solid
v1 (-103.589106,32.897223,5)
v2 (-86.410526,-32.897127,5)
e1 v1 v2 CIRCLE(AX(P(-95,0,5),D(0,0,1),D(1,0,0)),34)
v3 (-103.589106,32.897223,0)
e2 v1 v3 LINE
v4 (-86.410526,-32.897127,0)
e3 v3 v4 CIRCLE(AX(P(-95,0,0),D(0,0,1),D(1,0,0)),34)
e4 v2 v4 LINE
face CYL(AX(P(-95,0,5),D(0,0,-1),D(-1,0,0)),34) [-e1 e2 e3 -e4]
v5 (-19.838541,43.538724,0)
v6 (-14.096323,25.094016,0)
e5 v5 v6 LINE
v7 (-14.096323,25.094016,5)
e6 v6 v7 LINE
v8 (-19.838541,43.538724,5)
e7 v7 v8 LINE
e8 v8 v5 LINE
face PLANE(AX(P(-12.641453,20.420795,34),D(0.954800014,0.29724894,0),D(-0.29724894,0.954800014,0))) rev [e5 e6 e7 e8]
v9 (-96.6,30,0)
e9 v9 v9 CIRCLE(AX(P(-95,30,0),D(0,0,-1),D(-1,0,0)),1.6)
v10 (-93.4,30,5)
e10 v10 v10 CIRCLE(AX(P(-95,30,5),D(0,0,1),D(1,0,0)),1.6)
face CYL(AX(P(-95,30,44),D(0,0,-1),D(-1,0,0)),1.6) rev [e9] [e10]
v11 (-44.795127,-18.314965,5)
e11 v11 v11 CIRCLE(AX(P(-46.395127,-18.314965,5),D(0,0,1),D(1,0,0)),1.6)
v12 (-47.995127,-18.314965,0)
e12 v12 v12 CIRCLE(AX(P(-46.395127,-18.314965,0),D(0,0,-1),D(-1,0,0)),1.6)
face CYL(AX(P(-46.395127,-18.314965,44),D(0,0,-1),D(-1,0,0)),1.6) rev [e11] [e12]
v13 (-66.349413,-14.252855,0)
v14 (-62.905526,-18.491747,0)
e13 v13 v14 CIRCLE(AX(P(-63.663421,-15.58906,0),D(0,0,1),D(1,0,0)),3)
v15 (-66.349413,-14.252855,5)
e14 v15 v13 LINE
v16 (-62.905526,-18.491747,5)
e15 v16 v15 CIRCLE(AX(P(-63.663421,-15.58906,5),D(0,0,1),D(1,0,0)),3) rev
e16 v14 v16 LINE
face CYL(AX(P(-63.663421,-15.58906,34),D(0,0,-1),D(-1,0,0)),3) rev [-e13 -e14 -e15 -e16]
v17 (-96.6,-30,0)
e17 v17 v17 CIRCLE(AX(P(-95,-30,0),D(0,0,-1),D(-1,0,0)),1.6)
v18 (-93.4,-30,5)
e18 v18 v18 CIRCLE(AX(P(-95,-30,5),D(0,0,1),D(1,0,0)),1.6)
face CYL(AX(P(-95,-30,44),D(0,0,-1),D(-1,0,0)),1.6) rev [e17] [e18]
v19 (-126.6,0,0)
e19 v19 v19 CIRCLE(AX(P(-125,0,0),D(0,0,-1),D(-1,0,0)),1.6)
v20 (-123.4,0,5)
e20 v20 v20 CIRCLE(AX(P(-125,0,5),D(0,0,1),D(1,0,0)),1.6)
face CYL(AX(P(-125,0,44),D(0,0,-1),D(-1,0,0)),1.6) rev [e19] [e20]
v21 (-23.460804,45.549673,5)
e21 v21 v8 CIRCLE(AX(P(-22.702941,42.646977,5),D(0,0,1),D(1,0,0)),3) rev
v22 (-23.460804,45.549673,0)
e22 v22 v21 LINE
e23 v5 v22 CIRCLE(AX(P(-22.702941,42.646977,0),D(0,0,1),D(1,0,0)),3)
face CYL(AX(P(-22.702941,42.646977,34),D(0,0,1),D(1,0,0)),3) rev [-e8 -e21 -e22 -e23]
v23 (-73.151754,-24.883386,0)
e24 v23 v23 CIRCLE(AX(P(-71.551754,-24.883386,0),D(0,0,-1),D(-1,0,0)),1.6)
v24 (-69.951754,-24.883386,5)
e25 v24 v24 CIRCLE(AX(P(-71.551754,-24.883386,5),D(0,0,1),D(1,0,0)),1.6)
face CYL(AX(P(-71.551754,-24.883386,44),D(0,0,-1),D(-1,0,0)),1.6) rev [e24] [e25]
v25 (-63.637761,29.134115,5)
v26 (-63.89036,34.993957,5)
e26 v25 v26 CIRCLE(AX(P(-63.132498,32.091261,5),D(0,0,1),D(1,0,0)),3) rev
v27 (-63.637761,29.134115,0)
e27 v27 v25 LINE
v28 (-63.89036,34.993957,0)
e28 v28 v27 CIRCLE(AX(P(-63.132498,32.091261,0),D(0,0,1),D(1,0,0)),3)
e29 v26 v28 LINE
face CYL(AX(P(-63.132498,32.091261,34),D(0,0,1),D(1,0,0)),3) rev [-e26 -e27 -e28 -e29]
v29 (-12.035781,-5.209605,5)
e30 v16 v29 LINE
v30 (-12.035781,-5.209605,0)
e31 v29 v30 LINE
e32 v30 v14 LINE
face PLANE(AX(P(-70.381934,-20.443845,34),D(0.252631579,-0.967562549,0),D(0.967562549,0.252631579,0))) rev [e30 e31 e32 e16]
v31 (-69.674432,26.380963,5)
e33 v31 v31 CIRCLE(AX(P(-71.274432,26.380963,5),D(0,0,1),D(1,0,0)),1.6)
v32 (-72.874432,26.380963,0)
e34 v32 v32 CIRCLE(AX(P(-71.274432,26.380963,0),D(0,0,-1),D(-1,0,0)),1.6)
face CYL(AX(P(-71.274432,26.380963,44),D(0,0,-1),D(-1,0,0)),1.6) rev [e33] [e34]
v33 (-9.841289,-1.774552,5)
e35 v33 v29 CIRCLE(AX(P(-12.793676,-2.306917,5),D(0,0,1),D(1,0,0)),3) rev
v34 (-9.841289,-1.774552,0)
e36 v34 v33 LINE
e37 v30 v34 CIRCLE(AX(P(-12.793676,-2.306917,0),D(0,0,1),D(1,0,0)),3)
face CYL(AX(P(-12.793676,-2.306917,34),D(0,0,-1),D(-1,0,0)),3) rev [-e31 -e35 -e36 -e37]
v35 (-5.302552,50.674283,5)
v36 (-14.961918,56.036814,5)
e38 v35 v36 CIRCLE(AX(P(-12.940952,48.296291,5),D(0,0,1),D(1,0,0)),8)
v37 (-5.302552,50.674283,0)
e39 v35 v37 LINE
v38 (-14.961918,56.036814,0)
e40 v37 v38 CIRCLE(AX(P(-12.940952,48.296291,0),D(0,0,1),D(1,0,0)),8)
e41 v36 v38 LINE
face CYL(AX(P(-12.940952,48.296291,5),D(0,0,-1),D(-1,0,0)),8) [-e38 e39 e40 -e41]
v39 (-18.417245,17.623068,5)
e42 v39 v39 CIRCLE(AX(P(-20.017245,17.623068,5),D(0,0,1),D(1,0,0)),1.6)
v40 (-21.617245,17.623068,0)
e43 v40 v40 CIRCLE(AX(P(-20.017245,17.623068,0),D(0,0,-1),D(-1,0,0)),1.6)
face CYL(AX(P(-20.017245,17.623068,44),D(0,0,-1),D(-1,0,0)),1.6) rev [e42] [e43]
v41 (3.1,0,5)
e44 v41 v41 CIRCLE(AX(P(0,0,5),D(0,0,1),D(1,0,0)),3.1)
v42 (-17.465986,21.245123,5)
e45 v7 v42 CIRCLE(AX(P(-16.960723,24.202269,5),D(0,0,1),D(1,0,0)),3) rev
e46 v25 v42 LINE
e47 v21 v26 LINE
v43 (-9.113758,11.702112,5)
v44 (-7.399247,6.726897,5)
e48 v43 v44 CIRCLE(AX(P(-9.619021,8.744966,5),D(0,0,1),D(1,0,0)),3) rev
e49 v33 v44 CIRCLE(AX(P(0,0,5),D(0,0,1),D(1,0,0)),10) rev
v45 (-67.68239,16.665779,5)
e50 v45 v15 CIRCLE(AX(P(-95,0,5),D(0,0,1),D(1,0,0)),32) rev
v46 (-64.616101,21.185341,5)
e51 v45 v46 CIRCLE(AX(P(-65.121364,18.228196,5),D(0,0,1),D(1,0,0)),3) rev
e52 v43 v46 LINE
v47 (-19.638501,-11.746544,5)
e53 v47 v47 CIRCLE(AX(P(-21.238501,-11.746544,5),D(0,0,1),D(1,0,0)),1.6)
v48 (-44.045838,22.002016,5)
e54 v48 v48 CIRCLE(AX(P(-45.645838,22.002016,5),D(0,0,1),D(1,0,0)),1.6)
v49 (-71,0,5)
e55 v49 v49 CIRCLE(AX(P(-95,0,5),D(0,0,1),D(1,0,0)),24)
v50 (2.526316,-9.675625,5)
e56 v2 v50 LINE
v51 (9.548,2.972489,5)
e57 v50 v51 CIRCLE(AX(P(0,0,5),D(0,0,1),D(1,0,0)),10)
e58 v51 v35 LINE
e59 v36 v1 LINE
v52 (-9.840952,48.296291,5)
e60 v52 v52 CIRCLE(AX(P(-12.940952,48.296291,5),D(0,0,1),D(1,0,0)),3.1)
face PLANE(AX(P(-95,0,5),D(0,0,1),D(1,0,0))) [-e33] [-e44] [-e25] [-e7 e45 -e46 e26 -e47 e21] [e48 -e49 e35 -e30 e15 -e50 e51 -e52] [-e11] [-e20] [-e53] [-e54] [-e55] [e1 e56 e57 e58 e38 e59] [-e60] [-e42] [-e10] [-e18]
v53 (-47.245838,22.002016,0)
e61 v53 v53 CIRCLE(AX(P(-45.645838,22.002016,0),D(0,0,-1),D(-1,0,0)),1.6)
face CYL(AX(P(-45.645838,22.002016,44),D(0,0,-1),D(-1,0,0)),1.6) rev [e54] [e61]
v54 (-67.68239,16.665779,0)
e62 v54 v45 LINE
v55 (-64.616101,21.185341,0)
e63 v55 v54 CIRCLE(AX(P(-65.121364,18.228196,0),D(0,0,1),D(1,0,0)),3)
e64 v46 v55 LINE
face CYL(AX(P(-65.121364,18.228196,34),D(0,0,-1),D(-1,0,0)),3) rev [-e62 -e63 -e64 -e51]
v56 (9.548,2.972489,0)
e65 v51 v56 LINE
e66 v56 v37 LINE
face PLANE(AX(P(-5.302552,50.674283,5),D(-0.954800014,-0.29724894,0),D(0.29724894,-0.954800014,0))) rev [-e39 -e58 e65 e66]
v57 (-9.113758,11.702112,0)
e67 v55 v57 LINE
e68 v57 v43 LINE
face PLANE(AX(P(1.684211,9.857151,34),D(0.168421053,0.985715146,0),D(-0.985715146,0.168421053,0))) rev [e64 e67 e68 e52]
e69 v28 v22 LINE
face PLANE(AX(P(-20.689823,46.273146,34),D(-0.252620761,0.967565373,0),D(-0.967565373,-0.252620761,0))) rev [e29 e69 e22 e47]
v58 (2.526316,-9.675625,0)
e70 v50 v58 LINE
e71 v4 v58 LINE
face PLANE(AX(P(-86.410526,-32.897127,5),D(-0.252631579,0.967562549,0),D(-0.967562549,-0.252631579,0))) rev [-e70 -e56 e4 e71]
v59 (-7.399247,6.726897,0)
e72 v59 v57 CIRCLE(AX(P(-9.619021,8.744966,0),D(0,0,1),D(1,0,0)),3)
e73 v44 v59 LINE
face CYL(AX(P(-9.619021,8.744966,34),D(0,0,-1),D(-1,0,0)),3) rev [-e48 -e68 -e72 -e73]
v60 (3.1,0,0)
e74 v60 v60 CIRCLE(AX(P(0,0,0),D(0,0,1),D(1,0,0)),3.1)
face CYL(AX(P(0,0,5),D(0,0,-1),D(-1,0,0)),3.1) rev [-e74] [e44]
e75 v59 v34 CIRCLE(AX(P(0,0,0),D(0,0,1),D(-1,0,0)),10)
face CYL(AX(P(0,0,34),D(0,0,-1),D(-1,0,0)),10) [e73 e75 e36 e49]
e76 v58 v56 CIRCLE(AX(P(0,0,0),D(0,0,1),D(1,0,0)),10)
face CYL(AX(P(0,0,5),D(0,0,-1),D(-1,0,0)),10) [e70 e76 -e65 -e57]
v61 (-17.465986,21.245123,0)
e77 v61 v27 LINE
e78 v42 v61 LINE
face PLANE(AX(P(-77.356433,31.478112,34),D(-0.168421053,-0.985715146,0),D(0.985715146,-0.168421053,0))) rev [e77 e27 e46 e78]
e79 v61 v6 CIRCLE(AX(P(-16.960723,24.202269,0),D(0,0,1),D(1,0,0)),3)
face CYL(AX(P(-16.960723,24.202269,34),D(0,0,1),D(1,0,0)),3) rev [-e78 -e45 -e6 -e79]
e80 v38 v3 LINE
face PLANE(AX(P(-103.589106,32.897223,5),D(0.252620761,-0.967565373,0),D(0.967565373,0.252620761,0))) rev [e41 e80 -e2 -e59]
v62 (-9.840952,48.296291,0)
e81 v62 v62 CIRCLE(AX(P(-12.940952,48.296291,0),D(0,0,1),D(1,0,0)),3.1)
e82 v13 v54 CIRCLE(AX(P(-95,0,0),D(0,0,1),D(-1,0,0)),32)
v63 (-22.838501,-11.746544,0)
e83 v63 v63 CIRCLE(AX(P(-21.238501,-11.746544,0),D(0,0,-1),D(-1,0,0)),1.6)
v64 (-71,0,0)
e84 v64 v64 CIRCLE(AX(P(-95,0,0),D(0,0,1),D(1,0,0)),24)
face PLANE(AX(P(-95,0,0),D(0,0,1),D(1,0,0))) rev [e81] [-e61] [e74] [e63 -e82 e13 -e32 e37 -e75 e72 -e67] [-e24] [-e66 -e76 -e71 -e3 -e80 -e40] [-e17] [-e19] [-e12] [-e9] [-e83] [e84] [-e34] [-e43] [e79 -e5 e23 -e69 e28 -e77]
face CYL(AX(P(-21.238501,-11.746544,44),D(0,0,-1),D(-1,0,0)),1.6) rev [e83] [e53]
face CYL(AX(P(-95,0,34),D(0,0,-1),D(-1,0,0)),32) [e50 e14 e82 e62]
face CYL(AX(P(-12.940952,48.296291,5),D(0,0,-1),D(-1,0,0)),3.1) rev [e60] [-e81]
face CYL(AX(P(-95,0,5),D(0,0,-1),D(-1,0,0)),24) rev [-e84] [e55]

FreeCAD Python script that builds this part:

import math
import FreeCAD as App
import Part
import Sketcher
from FreeCAD import Vector
Q = App.Units.Quantity


def edges_at(feature, points):
    """Names of the edges that pass closest to the given points."""
    edges = feature.Shape.Edges
    near = lambda p: min(range(len(edges)), key=lambda i: edges[i].distToShape(Part.Vertex(*p))[0])
    return sorted({f"Edge{near(p) + 1}" for p in points})


def add_polygon(sketch, points):
    """Adds a closed chain of lines whose ends are joined by coincident constraints."""
    first, n = sketch.GeometryCount, len(points)
    for a, b in zip(points, points[1:] + points[:1]):
        sketch.addGeometry(Part.LineSegment(App.Vector(*a, 0), App.Vector(*b, 0)), False)
    for i in range(n):
        sketch.addConstraint(Sketcher.Constraint("Coincident", first + i, 2, first + (i + 1) % n, 1))

doc = App.newDocument("Part")
params = doc.addObject("Spreadsheet::Sheet", "Params")
for row, (alias, value) in enumerate([
    ("sketch1_diameter", "48 mm"),
    ("sketch1_radius", "34 mm"),
    ("sketch1_radius2", "10 mm"),
    ("sketch1_radius3", "8 mm"),
    ("sketch1_diameter2", "6.2 mm"),
    ("pad1_length", "5 mm"),
    ("sketch2_diameter", "3.2 mm"),
    ("pocket1_length", "44 mm"),
    ("sketch3_radius", "32 mm"),
    ("sketch3_radius2", "10 mm"),
    ("pocket2_length", "34 mm"),
    ("fillet_radius", "3 mm"),
    ("pocket3_length", "34 mm"),
    ("fillet2_radius", "3 mm"),
], start=1):
    params.set(f"A{row}", alias)
    params.set(f"B{row}", "=" + value)
    params.setAlias(f"B{row}", alias)

body = doc.addObject("PartDesign::Body", "Body")

sketch1 = body.newObject("Sketcher::SketchObject", "Sketch")
sketch1.AttachmentSupport = (doc.getObject("XY_Plane"), [""])
sketch1.MapMode = "FlatFace"
sketch1.addGeometry([
    Part.LineSegment(Vector(-14.961918, 56.036814, 0), Vector(-103.589106, 32.897223, 0)),
    Part.ArcOfCircle(Part.Circle(Vector(-95, 0, 0), Vector(0, 0, 1), 34), math.radians(104.63265), math.radians(284.63329)),
    Part.LineSegment(Vector(-86.410526, -32.897127, 0), Vector(2.526316, -9.675625, 0)),
    Part.ArcOfCircle(Part.Circle(Vector(0, 0, 0), Vector(0, 0, 1), 10), math.radians(-75.36671), math.radians(17.292443)),
    Part.LineSegment(Vector(9.548, 2.972489, 0), Vector(-5.302552, 50.674283, 0)),
    Part.ArcOfCircle(Part.Circle(Vector(-12.940952, 48.296291, 0), Vector(0, 0, 1), 8), math.radians(17.292443), math.radians(104.63265)),
    Part.Circle(Vector(0, 0, 0), Vector(0, 0, 1), 3.1),
    Part.Circle(Vector(-95, 0, 0), Vector(0, 0, 1), 24),
    Part.Circle(Vector(-12.940952, 48.296291, 0), Vector(0, 0, 1), 3.1),
], False)
sketch1.addConstraint([
    Sketcher.Constraint("Tangent", 0, 2, 1, 1),
    Sketcher.Constraint("Tangent", 1, 2, 2, 1),
    Sketcher.Constraint("Tangent", 2, 2, 3, 1),
    Sketcher.Constraint("Tangent", 3, 2, 4, 1),
    Sketcher.Constraint("Tangent", 4, 2, 5, 1),
    Sketcher.Constraint("Tangent", 5, 2, 0, 1),
    Sketcher.Constraint("Coincident", 3, 3, -1, 1),
    Sketcher.Constraint("Coincident", 6, 3, -1, 1),
    Sketcher.Constraint("Coincident", 7, 3, 1, 3),
    Sketcher.Constraint("Coincident", 8, 3, 5, 3),
    Sketcher.Constraint("Equal", 6, 8),
    Sketcher.Constraint("PointOnObject", 1, 3, -1),
    Sketcher.Constraint("Diameter", 7, Q("48 mm")),
    Sketcher.Constraint("Radius", 1, Q("34 mm")),
    Sketcher.Constraint("Radius", 3, Q("10 mm")),
    Sketcher.Constraint("Radius", 5, Q("8 mm")),
    Sketcher.Constraint("Diameter", 6, Q("6.2 mm")),
    Sketcher.Constraint("DistanceX", 1, 3, -1, 1, Q("95 mm")),
    Sketcher.Constraint("DistanceX", -1, 1, 3, 2, Q("9.548 mm")),
    Sketcher.Constraint("DistanceY", 3, 2, 8, 3, Q("45.323802 mm")),
])
sketch1.setExpression("Constraints[12]", "Params.sketch1_diameter")
sketch1.setExpression("Constraints[13]", "Params.sketch1_radius")
sketch1.setExpression("Constraints[14]", "Params.sketch1_radius2")
sketch1.setExpression("Constraints[15]", "Params.sketch1_radius3")
sketch1.setExpression("Constraints[16]", "Params.sketch1_diameter2")
pad1 = body.newObject("PartDesign::Pad", "Pad")
pad1.Profile = sketch1
pad1.setExpression("Length", "Params.pad1_length")

sketch2 = body.newObject("Sketcher::SketchObject", "Sketch001")
sketch2.AttachmentSupport = (doc.getObject("XY_Plane"), [""])
sketch2.MapMode = "FlatFace"
sketch2.addGeometry([
    Part.Circle(Vector(-21.238501, -11.746544, 0), Vector(0, 0, 1), 1.6),
    Part.Circle(Vector(-46.395127, -18.314965, 0), Vector(0, 0, 1), 1.6),
    Part.Circle(Vector(-71.551754, -24.883386, 0), Vector(0, 0, 1), 1.6),
    Part.Circle(Vector(-95, -30, 0), Vector(0, 0, 1), 1.6),
    Part.Circle(Vector(-125, 0, 0), Vector(0, 0, 1), 1.6),
    Part.Circle(Vector(-95, 30, 0), Vector(0, 0, 1), 1.6),
    Part.Circle(Vector(-71.274432, 26.380963, 0), Vector(0, 0, 1), 1.6),
    Part.Circle(Vector(-45.645838, 22.002016, 0), Vector(0, 0, 1), 1.6),
    Part.Circle(Vector(-20.017245, 17.623068, 0), Vector(0, 0, 1), 1.6),
], False)
sketch2.addConstraint([
    Sketcher.Constraint("Equal", 0, 1),
    Sketcher.Constraint("Equal", 1, 2),
    Sketcher.Constraint("Equal", 2, 3),
    Sketcher.Constraint("Equal", 3, 4),
    Sketcher.Constraint("Equal", 4, 5),
    Sketcher.Constraint("Equal", 5, 6),
    Sketcher.Constraint("Equal", 6, 7),
    Sketcher.Constraint("Equal", 7, 8),
    Sketcher.Constraint("Symmetric", 3, 3, 5, 3, -1),
    Sketcher.Constraint("PointOnObject", 4, 3, -1),
    Sketcher.Constraint("Diameter", 0, Q("3.2 mm")),
    Sketcher.Constraint("DistanceX", 3, 3, -1, 1, Q("95 mm")),
    Sketcher.Constraint("DistanceY", 3, 3, -1, 1, Q("30 mm")),
    Sketcher.Constraint("DistanceX", 4, 3, -1, 1, Q("125 mm")),
    Sketcher.Constraint("DistanceX", 0, 3, -1, 1, Q("21.238501 mm")),
    Sketcher.Constraint("DistanceY", 2, 3, 7, 3, Q("46.885402 mm")),
    Sketcher.Constraint("DistanceX", 7, 3, -1, 1, Q("45.645838 mm")),
    Sketcher.Constraint("DistanceY", -1, 1, 8, 3, Q("17.623068 mm")),
    Sketcher.Constraint("DistanceY", 1, 3, 0, 3, Q("6.568421 mm")),
    Sketcher.Constraint("DistanceY", 2, 3, 1, 3, Q("6.568421 mm")),
    Sketcher.Constraint("DistanceY", 1, 3, 6, 3, Q("44.695928 mm")),
    Sketcher.Constraint("DistanceX", 2, 3, 6, 3, Q("0.277321 mm")),
    Sketcher.Constraint("DistanceX", 1, 3, 7, 3, Q("0.749289 mm")),
    Sketcher.Constraint("DistanceX", 2, 3, 8, 3, Q("51.534509 mm")),
    Sketcher.Constraint("DistanceY", 0, 3, -1, 1, Q("11.746544 mm")),
    Sketcher.Constraint("DistanceX", 2, 3, -1, 1, Q("71.551754 mm")),
])
sketch2.setExpression("Constraints[10]", "Params.sketch2_diameter")
pocket1 = body.newObject("PartDesign::Pocket", "Pocket")
pocket1.Profile = sketch2
pocket1.setExpression("Length", "Params.pocket1_length")
pocket1.Reversed = True

sketch3 = body.newObject("Sketcher::SketchObject", "Sketch002")
sketch3.AttachmentSupport = (doc.getObject("XY_Plane"), [""])
sketch3.MapMode = "FlatFace"
sketch3.addGeometry([
    Part.LineSegment(Vector(-8.974875, -4.410399, 0), Vector(-70.381934, -20.443845, 0)),
    Part.ArcOfCircle(Part.Circle(Vector(-95, 0, 0), Vector(0, 0, 1), 32), math.radians(-39.707622), math.radians(44.644884)),
    Part.LineSegment(Vector(-72.232775, 22.48674, 0), Vector(1.684211, 9.857151, 0)),
    Part.ArcOfCircle(Part.Circle(Vector(0, 0, 0), Vector(0, 0, 1), 10), math.radians(80.303972), math.radians(206.170249)),
], False)
sketch3.addConstraint([
    Sketcher.Constraint("Coincident", 0, 2, 1, 1),
    Sketcher.Constraint("Coincident", 1, 2, 2, 1),
    Sketcher.Constraint("Tangent", 2, 2, 3, 1),
    Sketcher.Constraint("Coincident", 3, 2, 0, 1),
    Sketcher.Constraint("Coincident", 3, 3, -1, 1),
    Sketcher.Constraint("PointOnObject", 1, 3, -1),
    Sketcher.Constraint("Radius", 1, Q("32 mm")),
    Sketcher.Constraint("Radius", 3, Q("10 mm")),
    Sketcher.Constraint("DistanceX", 1, 3, -1, 1, Q("95 mm")),
    Sketcher.Constraint("DistanceY", 3, 2, -1, 1, Q("4.410399 mm")),
    Sketcher.Constraint("DistanceX", 1, 2, 3, 2, Q("63.2579 mm")),
    Sketcher.Constraint("DistanceX", 1, 2, 0, 2, Q("1.850841 mm")),
])
sketch3.setExpression("Constraints[6]", "Params.sketch3_radius")
sketch3.setExpression("Constraints[7]", "Params.sketch3_radius2")
pocket2 = body.newObject("PartDesign::Pocket", "Pocket001")
pocket2.Profile = sketch3
pocket2.setExpression("Length", "Params.pocket2_length")
pocket2.Reversed = True
doc.recompute()

fillet = body.newObject("PartDesign::Fillet", "Fillet")
fillet.Base = (pocket2, edges_at(pocket2, [
    (-8.975, -4.41, 2.5),
    (1.684, 9.857, 2.5),
    (-72.233, 22.487, 2.5),
    (-70.382, -20.444, 2.5),
]))
fillet.setExpression("Radius", "Params.fillet_radius")

sketch4 = body.newObject("Sketcher::SketchObject", "Sketch003")
sketch4.AttachmentSupport = (doc.getObject("XY_Plane"), [""])
sketch4.MapMode = "FlatFace"
add_polygon(sketch4, [(-77.356433, 31.478112), (-20.689823, 46.273146), (-12.641453, 20.420795)])
sketch4.addConstraint([
    Sketcher.Constraint("Distance", 2, Q("65.652821 mm")),
    Sketcher.Constraint("DistanceX", 0, 2, 1, 2, Q("8.04837 mm")),
    Sketcher.Constraint("DistanceY", 1, 2, 0, 2, Q("25.852351 mm")),
    Sketcher.Constraint("DistanceX", 2, 2, 0, 2, Q("56.66661 mm")),
    Sketcher.Constraint("DistanceX", 0, 2, -1, 1, Q("20.689823 mm")),
    Sketcher.Constraint("DistanceY", -1, 1, 0, 2, Q("46.273146 mm")),
])
pocket3 = body.newObject("PartDesign::Pocket", "Pocket002")
pocket3.Profile = sketch4
pocket3.setExpression("Length", "Params.pocket3_length")
pocket3.Reversed = True
doc.recompute()

fillet2 = body.newObject("PartDesign::Fillet", "Fillet001")
fillet2.Base = (pocket3, edges_at(pocket3, [(-12.641, 20.421, 2.5), (-20.69, 46.273, 2.5), (-77.356, 31.478, 2.5)]))
fillet2.setExpression("Radius", "Params.fillet2_radius")

doc.recompute()
